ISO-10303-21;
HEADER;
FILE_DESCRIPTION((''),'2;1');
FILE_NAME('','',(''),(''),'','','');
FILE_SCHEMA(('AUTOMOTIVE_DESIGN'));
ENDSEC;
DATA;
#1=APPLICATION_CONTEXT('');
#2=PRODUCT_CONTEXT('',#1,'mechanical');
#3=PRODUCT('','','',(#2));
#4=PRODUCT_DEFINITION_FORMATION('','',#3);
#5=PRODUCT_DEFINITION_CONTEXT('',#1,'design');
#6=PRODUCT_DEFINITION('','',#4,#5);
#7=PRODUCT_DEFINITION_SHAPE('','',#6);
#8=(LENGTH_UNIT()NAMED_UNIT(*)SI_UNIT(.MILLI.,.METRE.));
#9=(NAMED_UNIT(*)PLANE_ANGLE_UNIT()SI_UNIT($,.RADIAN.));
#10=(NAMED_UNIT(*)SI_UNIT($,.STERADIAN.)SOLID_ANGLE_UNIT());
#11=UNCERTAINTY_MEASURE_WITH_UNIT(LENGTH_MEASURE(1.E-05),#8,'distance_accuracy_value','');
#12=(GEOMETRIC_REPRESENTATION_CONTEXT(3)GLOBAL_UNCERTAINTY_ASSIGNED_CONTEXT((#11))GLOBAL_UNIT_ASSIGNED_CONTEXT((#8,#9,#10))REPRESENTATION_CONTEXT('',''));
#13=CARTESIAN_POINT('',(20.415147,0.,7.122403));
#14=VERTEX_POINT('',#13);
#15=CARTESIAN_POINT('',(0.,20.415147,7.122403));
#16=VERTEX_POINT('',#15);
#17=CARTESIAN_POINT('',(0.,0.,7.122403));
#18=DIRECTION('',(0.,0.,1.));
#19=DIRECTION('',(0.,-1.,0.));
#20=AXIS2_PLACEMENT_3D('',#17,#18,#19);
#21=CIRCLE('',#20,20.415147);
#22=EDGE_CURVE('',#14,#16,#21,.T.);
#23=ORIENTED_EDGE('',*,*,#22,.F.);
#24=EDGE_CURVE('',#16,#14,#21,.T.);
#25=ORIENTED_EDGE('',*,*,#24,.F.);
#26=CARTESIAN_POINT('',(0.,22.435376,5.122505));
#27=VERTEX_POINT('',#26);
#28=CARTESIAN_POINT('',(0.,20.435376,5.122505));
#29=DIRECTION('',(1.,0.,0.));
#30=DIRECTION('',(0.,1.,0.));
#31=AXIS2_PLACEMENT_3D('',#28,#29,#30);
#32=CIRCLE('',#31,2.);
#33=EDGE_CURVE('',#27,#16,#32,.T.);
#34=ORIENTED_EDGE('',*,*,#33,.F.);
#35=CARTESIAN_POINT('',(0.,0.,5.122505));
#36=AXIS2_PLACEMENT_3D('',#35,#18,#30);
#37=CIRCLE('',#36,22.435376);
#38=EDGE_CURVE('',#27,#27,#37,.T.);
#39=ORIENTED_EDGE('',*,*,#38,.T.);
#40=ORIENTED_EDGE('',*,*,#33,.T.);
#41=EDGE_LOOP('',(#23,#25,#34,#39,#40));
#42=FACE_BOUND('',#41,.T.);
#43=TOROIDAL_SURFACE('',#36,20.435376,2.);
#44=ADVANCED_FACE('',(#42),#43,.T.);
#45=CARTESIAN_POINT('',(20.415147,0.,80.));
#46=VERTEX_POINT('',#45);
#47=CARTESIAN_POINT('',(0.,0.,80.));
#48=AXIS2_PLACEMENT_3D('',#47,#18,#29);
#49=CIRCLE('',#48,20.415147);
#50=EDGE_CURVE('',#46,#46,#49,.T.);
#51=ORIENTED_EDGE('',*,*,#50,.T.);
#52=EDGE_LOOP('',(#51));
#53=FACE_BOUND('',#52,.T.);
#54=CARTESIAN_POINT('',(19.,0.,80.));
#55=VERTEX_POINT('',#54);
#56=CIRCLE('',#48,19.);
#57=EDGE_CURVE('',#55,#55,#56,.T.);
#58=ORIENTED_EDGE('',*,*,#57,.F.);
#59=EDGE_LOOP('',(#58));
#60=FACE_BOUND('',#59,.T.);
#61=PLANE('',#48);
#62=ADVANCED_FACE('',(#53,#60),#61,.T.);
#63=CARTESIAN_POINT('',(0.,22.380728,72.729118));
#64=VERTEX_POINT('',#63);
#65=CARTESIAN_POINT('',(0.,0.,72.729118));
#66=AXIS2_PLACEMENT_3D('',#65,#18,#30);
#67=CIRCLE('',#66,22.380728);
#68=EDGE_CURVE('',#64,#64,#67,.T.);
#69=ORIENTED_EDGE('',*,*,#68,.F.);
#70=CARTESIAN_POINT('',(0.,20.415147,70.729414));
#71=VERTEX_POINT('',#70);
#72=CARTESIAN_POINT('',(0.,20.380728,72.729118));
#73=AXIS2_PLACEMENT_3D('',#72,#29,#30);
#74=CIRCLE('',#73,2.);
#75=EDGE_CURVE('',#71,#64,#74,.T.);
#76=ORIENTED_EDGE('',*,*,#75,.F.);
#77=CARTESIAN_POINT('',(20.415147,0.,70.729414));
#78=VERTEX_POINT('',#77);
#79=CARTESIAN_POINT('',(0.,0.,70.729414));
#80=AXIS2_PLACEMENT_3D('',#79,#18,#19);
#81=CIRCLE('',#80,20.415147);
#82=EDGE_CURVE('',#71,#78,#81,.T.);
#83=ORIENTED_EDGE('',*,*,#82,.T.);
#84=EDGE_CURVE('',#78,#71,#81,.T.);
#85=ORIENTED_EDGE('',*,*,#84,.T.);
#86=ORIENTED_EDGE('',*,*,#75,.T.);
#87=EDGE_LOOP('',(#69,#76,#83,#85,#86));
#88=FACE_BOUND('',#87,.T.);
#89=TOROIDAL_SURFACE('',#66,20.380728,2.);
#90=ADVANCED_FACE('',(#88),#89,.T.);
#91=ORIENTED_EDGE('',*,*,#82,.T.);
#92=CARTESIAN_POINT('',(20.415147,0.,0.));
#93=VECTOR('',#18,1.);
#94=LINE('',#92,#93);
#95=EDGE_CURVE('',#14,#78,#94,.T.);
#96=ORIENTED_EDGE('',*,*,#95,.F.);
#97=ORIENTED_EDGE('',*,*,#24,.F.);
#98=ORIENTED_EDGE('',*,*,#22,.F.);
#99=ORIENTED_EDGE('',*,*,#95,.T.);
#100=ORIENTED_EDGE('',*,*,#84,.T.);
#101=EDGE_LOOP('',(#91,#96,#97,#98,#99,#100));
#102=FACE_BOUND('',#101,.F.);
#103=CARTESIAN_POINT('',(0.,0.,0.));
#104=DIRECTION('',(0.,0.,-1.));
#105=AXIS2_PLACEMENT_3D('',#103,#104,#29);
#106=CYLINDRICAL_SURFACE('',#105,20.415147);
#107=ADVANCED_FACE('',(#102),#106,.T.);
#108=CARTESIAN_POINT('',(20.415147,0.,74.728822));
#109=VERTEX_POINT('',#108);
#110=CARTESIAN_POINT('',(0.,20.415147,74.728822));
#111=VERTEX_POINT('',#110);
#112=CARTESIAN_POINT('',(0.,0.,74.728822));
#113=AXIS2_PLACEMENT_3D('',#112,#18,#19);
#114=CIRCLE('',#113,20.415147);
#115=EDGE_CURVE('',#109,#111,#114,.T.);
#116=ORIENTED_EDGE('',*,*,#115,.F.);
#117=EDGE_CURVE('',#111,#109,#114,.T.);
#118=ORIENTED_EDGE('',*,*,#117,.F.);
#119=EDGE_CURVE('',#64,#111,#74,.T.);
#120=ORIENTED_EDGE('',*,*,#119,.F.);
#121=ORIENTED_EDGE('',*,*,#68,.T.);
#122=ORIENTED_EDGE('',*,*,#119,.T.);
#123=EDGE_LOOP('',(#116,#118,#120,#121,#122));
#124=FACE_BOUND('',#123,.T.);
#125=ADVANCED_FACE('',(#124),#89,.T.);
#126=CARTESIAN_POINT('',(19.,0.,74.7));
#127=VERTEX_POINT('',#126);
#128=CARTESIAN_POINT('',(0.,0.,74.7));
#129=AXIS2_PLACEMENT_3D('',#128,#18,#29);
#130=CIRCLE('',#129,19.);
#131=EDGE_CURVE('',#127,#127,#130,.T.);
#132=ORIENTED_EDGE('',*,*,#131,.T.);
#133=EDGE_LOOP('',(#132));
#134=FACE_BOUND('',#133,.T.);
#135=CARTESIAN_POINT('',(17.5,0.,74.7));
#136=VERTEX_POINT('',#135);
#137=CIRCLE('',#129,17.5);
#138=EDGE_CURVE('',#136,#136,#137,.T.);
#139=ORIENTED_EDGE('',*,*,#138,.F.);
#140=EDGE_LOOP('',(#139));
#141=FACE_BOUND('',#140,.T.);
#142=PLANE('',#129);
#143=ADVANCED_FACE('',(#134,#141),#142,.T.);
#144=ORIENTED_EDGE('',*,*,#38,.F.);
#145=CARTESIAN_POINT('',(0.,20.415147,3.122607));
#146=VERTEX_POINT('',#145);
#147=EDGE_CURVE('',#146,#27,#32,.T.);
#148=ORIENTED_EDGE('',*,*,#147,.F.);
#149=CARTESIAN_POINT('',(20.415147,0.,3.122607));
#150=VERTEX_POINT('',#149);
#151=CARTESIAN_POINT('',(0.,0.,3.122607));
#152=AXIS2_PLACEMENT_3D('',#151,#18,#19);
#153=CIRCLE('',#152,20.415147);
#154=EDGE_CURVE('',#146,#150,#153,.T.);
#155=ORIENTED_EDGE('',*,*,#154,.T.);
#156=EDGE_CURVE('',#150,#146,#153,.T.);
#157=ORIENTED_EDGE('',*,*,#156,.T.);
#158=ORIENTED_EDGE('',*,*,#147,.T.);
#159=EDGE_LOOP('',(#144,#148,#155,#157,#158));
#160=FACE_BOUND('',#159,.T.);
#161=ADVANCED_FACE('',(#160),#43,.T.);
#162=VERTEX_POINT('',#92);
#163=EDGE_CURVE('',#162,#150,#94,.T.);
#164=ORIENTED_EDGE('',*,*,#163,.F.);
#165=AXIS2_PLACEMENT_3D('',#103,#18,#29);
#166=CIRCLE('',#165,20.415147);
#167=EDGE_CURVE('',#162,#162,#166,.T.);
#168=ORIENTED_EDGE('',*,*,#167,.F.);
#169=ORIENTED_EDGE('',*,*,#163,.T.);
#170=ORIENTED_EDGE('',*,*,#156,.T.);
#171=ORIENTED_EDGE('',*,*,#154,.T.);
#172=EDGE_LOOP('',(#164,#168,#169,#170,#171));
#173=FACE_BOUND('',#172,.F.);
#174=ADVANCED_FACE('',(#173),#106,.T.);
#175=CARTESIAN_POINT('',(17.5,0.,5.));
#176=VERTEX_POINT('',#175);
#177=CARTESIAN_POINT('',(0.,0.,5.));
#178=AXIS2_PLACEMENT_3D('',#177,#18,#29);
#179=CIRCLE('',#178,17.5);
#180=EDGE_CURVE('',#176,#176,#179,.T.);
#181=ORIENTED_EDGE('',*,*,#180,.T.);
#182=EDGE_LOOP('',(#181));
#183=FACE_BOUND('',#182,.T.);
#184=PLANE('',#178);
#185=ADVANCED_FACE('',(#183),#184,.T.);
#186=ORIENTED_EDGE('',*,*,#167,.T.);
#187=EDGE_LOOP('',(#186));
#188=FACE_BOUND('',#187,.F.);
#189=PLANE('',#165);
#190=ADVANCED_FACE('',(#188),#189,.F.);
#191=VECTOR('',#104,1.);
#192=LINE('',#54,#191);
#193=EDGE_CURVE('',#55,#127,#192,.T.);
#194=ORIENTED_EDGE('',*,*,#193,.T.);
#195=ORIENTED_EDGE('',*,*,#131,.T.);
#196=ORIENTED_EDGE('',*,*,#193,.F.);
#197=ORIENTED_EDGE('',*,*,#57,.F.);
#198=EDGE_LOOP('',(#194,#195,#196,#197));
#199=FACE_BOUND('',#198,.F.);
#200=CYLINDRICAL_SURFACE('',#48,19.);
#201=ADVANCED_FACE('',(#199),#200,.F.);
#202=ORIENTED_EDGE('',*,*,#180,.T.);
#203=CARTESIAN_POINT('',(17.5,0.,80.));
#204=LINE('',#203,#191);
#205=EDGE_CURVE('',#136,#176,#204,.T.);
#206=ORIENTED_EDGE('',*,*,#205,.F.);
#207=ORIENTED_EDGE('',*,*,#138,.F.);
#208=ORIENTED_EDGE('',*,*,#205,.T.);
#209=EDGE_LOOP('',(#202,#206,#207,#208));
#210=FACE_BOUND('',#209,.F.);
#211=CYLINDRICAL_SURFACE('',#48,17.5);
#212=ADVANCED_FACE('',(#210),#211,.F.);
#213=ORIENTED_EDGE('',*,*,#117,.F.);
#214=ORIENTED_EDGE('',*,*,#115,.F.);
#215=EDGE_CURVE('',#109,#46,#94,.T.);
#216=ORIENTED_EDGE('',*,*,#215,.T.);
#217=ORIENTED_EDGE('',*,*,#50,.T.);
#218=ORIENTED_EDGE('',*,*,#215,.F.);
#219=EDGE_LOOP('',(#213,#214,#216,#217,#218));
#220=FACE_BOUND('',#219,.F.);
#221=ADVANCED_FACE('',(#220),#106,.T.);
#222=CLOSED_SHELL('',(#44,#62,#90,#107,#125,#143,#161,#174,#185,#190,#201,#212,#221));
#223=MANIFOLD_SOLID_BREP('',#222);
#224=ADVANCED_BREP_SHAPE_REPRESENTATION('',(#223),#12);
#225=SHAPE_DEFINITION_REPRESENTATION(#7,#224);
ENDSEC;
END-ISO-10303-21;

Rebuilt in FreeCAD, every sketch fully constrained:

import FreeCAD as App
import Part
import Sketcher
from FreeCAD import Vector

doc = App.newDocument("Part")
body = doc.addObject("PartDesign::Body", "Body")

sketch1 = body.newObject("Sketcher::SketchObject", "Sketch")
sketch1.AttachmentSupport = (doc.getObject("XY_Plane"), [""])
sketch1.MapMode = "FlatFace"
sketch1.addGeometry(Part.Circle(Vector(0, 0, 0), Vector(0, 0, 1), 20), False)
sketch1.addConstraint(Sketcher.Constraint("Coincident", 0, 3, -1, 1))
sketch1.addConstraint(Sketcher.Constraint("Diameter", 0, 40.830294))
pad1 = body.newObject("PartDesign::Pad", "Pad")
pad1.Profile = sketch1
pad1.Length = 80

sketch2 = body.newObject("Sketcher::SketchObject", "Sketch001")
sketch2.AttachmentSupport = (doc.getObject("XY_Plane"), [""])
sketch2.MapMode = "FlatFace"
sketch2.AttachmentOffset = App.Placement(Vector(0, 0, 80), App.Rotation())
sketch2.addGeometry(Part.Circle(Vector(0, 0, 0), Vector(0, 0, 1), 18), False)
sketch2.addConstraint(Sketcher.Constraint("Coincident", 0, 3, -1, 1))
sketch2.addConstraint(Sketcher.Constraint("Diameter", 0, 35.0))
pocket1 = body.newObject("PartDesign::Pocket", "Pocket")
pocket1.Profile = sketch2
pocket1.Length = 75

sketch3 = body.newObject("Sketcher::SketchObject", "Sketch002")
sketch3.AttachmentSupport = (doc.getObject("XY_Plane"), [""])
sketch3.MapMode = "FlatFace"
sketch3.AttachmentOffset = App.Placement(Vector(0, 0, 80), App.Rotation())
sketch3.addGeometry(Part.Circle(Vector(0, 0, 0), Vector(0, 0, 1), 19), False)
sketch3.addConstraint(Sketcher.Constraint("Coincident", 0, 3, -1, 1))
sketch3.addConstraint(Sketcher.Constraint("Diameter", 0, 38.0))
pocket2 = body.newObject("PartDesign::Pocket", "Pocket001")
pocket2.Profile = sketch3
pocket2.Length = 5.3

sketch4 = body.newObject("Sketcher::SketchObject", "Sketch003")
sketch4.AttachmentSupport = (doc.getObject("YZ_Plane"), [""])
sketch4.MapMode = "FlatFace"
sketch4.addGeometry(Part.Circle(Vector(20.4, 72.7, 0), Vector(0, 0, 1), 2), False)
sketch4.addGeometry(Part.Circle(Vector(20.4, 5.1, 0), Vector(0, 0, 1), 2), False)
sketch4.addConstraint(Sketcher.Constraint("Equal", 0, 1))
sketch4.addConstraint(Sketcher.Constraint("Diameter", 0, 4.0))
sketch4.addConstraint(Sketcher.Constraint("DistanceX", -1, 1, 0, 3, 20.380728))
sketch4.addConstraint(Sketcher.Constraint("DistanceY", -1, 1, 0, 3, 72.729118))
sketch4.addConstraint(Sketcher.Constraint("DistanceX", 0, 3, 1, 3, 0.054648))
sketch4.addConstraint(Sketcher.Constraint("DistanceY", -1, 1, 1, 3, 5.122505))
revolution = body.newObject("PartDesign::Revolution", "Revolution")
revolution.Profile = sketch4
revolution.ReferenceAxis = (sketch4, ["V_Axis"])
revolution.Angle = 360

doc.recompute()
